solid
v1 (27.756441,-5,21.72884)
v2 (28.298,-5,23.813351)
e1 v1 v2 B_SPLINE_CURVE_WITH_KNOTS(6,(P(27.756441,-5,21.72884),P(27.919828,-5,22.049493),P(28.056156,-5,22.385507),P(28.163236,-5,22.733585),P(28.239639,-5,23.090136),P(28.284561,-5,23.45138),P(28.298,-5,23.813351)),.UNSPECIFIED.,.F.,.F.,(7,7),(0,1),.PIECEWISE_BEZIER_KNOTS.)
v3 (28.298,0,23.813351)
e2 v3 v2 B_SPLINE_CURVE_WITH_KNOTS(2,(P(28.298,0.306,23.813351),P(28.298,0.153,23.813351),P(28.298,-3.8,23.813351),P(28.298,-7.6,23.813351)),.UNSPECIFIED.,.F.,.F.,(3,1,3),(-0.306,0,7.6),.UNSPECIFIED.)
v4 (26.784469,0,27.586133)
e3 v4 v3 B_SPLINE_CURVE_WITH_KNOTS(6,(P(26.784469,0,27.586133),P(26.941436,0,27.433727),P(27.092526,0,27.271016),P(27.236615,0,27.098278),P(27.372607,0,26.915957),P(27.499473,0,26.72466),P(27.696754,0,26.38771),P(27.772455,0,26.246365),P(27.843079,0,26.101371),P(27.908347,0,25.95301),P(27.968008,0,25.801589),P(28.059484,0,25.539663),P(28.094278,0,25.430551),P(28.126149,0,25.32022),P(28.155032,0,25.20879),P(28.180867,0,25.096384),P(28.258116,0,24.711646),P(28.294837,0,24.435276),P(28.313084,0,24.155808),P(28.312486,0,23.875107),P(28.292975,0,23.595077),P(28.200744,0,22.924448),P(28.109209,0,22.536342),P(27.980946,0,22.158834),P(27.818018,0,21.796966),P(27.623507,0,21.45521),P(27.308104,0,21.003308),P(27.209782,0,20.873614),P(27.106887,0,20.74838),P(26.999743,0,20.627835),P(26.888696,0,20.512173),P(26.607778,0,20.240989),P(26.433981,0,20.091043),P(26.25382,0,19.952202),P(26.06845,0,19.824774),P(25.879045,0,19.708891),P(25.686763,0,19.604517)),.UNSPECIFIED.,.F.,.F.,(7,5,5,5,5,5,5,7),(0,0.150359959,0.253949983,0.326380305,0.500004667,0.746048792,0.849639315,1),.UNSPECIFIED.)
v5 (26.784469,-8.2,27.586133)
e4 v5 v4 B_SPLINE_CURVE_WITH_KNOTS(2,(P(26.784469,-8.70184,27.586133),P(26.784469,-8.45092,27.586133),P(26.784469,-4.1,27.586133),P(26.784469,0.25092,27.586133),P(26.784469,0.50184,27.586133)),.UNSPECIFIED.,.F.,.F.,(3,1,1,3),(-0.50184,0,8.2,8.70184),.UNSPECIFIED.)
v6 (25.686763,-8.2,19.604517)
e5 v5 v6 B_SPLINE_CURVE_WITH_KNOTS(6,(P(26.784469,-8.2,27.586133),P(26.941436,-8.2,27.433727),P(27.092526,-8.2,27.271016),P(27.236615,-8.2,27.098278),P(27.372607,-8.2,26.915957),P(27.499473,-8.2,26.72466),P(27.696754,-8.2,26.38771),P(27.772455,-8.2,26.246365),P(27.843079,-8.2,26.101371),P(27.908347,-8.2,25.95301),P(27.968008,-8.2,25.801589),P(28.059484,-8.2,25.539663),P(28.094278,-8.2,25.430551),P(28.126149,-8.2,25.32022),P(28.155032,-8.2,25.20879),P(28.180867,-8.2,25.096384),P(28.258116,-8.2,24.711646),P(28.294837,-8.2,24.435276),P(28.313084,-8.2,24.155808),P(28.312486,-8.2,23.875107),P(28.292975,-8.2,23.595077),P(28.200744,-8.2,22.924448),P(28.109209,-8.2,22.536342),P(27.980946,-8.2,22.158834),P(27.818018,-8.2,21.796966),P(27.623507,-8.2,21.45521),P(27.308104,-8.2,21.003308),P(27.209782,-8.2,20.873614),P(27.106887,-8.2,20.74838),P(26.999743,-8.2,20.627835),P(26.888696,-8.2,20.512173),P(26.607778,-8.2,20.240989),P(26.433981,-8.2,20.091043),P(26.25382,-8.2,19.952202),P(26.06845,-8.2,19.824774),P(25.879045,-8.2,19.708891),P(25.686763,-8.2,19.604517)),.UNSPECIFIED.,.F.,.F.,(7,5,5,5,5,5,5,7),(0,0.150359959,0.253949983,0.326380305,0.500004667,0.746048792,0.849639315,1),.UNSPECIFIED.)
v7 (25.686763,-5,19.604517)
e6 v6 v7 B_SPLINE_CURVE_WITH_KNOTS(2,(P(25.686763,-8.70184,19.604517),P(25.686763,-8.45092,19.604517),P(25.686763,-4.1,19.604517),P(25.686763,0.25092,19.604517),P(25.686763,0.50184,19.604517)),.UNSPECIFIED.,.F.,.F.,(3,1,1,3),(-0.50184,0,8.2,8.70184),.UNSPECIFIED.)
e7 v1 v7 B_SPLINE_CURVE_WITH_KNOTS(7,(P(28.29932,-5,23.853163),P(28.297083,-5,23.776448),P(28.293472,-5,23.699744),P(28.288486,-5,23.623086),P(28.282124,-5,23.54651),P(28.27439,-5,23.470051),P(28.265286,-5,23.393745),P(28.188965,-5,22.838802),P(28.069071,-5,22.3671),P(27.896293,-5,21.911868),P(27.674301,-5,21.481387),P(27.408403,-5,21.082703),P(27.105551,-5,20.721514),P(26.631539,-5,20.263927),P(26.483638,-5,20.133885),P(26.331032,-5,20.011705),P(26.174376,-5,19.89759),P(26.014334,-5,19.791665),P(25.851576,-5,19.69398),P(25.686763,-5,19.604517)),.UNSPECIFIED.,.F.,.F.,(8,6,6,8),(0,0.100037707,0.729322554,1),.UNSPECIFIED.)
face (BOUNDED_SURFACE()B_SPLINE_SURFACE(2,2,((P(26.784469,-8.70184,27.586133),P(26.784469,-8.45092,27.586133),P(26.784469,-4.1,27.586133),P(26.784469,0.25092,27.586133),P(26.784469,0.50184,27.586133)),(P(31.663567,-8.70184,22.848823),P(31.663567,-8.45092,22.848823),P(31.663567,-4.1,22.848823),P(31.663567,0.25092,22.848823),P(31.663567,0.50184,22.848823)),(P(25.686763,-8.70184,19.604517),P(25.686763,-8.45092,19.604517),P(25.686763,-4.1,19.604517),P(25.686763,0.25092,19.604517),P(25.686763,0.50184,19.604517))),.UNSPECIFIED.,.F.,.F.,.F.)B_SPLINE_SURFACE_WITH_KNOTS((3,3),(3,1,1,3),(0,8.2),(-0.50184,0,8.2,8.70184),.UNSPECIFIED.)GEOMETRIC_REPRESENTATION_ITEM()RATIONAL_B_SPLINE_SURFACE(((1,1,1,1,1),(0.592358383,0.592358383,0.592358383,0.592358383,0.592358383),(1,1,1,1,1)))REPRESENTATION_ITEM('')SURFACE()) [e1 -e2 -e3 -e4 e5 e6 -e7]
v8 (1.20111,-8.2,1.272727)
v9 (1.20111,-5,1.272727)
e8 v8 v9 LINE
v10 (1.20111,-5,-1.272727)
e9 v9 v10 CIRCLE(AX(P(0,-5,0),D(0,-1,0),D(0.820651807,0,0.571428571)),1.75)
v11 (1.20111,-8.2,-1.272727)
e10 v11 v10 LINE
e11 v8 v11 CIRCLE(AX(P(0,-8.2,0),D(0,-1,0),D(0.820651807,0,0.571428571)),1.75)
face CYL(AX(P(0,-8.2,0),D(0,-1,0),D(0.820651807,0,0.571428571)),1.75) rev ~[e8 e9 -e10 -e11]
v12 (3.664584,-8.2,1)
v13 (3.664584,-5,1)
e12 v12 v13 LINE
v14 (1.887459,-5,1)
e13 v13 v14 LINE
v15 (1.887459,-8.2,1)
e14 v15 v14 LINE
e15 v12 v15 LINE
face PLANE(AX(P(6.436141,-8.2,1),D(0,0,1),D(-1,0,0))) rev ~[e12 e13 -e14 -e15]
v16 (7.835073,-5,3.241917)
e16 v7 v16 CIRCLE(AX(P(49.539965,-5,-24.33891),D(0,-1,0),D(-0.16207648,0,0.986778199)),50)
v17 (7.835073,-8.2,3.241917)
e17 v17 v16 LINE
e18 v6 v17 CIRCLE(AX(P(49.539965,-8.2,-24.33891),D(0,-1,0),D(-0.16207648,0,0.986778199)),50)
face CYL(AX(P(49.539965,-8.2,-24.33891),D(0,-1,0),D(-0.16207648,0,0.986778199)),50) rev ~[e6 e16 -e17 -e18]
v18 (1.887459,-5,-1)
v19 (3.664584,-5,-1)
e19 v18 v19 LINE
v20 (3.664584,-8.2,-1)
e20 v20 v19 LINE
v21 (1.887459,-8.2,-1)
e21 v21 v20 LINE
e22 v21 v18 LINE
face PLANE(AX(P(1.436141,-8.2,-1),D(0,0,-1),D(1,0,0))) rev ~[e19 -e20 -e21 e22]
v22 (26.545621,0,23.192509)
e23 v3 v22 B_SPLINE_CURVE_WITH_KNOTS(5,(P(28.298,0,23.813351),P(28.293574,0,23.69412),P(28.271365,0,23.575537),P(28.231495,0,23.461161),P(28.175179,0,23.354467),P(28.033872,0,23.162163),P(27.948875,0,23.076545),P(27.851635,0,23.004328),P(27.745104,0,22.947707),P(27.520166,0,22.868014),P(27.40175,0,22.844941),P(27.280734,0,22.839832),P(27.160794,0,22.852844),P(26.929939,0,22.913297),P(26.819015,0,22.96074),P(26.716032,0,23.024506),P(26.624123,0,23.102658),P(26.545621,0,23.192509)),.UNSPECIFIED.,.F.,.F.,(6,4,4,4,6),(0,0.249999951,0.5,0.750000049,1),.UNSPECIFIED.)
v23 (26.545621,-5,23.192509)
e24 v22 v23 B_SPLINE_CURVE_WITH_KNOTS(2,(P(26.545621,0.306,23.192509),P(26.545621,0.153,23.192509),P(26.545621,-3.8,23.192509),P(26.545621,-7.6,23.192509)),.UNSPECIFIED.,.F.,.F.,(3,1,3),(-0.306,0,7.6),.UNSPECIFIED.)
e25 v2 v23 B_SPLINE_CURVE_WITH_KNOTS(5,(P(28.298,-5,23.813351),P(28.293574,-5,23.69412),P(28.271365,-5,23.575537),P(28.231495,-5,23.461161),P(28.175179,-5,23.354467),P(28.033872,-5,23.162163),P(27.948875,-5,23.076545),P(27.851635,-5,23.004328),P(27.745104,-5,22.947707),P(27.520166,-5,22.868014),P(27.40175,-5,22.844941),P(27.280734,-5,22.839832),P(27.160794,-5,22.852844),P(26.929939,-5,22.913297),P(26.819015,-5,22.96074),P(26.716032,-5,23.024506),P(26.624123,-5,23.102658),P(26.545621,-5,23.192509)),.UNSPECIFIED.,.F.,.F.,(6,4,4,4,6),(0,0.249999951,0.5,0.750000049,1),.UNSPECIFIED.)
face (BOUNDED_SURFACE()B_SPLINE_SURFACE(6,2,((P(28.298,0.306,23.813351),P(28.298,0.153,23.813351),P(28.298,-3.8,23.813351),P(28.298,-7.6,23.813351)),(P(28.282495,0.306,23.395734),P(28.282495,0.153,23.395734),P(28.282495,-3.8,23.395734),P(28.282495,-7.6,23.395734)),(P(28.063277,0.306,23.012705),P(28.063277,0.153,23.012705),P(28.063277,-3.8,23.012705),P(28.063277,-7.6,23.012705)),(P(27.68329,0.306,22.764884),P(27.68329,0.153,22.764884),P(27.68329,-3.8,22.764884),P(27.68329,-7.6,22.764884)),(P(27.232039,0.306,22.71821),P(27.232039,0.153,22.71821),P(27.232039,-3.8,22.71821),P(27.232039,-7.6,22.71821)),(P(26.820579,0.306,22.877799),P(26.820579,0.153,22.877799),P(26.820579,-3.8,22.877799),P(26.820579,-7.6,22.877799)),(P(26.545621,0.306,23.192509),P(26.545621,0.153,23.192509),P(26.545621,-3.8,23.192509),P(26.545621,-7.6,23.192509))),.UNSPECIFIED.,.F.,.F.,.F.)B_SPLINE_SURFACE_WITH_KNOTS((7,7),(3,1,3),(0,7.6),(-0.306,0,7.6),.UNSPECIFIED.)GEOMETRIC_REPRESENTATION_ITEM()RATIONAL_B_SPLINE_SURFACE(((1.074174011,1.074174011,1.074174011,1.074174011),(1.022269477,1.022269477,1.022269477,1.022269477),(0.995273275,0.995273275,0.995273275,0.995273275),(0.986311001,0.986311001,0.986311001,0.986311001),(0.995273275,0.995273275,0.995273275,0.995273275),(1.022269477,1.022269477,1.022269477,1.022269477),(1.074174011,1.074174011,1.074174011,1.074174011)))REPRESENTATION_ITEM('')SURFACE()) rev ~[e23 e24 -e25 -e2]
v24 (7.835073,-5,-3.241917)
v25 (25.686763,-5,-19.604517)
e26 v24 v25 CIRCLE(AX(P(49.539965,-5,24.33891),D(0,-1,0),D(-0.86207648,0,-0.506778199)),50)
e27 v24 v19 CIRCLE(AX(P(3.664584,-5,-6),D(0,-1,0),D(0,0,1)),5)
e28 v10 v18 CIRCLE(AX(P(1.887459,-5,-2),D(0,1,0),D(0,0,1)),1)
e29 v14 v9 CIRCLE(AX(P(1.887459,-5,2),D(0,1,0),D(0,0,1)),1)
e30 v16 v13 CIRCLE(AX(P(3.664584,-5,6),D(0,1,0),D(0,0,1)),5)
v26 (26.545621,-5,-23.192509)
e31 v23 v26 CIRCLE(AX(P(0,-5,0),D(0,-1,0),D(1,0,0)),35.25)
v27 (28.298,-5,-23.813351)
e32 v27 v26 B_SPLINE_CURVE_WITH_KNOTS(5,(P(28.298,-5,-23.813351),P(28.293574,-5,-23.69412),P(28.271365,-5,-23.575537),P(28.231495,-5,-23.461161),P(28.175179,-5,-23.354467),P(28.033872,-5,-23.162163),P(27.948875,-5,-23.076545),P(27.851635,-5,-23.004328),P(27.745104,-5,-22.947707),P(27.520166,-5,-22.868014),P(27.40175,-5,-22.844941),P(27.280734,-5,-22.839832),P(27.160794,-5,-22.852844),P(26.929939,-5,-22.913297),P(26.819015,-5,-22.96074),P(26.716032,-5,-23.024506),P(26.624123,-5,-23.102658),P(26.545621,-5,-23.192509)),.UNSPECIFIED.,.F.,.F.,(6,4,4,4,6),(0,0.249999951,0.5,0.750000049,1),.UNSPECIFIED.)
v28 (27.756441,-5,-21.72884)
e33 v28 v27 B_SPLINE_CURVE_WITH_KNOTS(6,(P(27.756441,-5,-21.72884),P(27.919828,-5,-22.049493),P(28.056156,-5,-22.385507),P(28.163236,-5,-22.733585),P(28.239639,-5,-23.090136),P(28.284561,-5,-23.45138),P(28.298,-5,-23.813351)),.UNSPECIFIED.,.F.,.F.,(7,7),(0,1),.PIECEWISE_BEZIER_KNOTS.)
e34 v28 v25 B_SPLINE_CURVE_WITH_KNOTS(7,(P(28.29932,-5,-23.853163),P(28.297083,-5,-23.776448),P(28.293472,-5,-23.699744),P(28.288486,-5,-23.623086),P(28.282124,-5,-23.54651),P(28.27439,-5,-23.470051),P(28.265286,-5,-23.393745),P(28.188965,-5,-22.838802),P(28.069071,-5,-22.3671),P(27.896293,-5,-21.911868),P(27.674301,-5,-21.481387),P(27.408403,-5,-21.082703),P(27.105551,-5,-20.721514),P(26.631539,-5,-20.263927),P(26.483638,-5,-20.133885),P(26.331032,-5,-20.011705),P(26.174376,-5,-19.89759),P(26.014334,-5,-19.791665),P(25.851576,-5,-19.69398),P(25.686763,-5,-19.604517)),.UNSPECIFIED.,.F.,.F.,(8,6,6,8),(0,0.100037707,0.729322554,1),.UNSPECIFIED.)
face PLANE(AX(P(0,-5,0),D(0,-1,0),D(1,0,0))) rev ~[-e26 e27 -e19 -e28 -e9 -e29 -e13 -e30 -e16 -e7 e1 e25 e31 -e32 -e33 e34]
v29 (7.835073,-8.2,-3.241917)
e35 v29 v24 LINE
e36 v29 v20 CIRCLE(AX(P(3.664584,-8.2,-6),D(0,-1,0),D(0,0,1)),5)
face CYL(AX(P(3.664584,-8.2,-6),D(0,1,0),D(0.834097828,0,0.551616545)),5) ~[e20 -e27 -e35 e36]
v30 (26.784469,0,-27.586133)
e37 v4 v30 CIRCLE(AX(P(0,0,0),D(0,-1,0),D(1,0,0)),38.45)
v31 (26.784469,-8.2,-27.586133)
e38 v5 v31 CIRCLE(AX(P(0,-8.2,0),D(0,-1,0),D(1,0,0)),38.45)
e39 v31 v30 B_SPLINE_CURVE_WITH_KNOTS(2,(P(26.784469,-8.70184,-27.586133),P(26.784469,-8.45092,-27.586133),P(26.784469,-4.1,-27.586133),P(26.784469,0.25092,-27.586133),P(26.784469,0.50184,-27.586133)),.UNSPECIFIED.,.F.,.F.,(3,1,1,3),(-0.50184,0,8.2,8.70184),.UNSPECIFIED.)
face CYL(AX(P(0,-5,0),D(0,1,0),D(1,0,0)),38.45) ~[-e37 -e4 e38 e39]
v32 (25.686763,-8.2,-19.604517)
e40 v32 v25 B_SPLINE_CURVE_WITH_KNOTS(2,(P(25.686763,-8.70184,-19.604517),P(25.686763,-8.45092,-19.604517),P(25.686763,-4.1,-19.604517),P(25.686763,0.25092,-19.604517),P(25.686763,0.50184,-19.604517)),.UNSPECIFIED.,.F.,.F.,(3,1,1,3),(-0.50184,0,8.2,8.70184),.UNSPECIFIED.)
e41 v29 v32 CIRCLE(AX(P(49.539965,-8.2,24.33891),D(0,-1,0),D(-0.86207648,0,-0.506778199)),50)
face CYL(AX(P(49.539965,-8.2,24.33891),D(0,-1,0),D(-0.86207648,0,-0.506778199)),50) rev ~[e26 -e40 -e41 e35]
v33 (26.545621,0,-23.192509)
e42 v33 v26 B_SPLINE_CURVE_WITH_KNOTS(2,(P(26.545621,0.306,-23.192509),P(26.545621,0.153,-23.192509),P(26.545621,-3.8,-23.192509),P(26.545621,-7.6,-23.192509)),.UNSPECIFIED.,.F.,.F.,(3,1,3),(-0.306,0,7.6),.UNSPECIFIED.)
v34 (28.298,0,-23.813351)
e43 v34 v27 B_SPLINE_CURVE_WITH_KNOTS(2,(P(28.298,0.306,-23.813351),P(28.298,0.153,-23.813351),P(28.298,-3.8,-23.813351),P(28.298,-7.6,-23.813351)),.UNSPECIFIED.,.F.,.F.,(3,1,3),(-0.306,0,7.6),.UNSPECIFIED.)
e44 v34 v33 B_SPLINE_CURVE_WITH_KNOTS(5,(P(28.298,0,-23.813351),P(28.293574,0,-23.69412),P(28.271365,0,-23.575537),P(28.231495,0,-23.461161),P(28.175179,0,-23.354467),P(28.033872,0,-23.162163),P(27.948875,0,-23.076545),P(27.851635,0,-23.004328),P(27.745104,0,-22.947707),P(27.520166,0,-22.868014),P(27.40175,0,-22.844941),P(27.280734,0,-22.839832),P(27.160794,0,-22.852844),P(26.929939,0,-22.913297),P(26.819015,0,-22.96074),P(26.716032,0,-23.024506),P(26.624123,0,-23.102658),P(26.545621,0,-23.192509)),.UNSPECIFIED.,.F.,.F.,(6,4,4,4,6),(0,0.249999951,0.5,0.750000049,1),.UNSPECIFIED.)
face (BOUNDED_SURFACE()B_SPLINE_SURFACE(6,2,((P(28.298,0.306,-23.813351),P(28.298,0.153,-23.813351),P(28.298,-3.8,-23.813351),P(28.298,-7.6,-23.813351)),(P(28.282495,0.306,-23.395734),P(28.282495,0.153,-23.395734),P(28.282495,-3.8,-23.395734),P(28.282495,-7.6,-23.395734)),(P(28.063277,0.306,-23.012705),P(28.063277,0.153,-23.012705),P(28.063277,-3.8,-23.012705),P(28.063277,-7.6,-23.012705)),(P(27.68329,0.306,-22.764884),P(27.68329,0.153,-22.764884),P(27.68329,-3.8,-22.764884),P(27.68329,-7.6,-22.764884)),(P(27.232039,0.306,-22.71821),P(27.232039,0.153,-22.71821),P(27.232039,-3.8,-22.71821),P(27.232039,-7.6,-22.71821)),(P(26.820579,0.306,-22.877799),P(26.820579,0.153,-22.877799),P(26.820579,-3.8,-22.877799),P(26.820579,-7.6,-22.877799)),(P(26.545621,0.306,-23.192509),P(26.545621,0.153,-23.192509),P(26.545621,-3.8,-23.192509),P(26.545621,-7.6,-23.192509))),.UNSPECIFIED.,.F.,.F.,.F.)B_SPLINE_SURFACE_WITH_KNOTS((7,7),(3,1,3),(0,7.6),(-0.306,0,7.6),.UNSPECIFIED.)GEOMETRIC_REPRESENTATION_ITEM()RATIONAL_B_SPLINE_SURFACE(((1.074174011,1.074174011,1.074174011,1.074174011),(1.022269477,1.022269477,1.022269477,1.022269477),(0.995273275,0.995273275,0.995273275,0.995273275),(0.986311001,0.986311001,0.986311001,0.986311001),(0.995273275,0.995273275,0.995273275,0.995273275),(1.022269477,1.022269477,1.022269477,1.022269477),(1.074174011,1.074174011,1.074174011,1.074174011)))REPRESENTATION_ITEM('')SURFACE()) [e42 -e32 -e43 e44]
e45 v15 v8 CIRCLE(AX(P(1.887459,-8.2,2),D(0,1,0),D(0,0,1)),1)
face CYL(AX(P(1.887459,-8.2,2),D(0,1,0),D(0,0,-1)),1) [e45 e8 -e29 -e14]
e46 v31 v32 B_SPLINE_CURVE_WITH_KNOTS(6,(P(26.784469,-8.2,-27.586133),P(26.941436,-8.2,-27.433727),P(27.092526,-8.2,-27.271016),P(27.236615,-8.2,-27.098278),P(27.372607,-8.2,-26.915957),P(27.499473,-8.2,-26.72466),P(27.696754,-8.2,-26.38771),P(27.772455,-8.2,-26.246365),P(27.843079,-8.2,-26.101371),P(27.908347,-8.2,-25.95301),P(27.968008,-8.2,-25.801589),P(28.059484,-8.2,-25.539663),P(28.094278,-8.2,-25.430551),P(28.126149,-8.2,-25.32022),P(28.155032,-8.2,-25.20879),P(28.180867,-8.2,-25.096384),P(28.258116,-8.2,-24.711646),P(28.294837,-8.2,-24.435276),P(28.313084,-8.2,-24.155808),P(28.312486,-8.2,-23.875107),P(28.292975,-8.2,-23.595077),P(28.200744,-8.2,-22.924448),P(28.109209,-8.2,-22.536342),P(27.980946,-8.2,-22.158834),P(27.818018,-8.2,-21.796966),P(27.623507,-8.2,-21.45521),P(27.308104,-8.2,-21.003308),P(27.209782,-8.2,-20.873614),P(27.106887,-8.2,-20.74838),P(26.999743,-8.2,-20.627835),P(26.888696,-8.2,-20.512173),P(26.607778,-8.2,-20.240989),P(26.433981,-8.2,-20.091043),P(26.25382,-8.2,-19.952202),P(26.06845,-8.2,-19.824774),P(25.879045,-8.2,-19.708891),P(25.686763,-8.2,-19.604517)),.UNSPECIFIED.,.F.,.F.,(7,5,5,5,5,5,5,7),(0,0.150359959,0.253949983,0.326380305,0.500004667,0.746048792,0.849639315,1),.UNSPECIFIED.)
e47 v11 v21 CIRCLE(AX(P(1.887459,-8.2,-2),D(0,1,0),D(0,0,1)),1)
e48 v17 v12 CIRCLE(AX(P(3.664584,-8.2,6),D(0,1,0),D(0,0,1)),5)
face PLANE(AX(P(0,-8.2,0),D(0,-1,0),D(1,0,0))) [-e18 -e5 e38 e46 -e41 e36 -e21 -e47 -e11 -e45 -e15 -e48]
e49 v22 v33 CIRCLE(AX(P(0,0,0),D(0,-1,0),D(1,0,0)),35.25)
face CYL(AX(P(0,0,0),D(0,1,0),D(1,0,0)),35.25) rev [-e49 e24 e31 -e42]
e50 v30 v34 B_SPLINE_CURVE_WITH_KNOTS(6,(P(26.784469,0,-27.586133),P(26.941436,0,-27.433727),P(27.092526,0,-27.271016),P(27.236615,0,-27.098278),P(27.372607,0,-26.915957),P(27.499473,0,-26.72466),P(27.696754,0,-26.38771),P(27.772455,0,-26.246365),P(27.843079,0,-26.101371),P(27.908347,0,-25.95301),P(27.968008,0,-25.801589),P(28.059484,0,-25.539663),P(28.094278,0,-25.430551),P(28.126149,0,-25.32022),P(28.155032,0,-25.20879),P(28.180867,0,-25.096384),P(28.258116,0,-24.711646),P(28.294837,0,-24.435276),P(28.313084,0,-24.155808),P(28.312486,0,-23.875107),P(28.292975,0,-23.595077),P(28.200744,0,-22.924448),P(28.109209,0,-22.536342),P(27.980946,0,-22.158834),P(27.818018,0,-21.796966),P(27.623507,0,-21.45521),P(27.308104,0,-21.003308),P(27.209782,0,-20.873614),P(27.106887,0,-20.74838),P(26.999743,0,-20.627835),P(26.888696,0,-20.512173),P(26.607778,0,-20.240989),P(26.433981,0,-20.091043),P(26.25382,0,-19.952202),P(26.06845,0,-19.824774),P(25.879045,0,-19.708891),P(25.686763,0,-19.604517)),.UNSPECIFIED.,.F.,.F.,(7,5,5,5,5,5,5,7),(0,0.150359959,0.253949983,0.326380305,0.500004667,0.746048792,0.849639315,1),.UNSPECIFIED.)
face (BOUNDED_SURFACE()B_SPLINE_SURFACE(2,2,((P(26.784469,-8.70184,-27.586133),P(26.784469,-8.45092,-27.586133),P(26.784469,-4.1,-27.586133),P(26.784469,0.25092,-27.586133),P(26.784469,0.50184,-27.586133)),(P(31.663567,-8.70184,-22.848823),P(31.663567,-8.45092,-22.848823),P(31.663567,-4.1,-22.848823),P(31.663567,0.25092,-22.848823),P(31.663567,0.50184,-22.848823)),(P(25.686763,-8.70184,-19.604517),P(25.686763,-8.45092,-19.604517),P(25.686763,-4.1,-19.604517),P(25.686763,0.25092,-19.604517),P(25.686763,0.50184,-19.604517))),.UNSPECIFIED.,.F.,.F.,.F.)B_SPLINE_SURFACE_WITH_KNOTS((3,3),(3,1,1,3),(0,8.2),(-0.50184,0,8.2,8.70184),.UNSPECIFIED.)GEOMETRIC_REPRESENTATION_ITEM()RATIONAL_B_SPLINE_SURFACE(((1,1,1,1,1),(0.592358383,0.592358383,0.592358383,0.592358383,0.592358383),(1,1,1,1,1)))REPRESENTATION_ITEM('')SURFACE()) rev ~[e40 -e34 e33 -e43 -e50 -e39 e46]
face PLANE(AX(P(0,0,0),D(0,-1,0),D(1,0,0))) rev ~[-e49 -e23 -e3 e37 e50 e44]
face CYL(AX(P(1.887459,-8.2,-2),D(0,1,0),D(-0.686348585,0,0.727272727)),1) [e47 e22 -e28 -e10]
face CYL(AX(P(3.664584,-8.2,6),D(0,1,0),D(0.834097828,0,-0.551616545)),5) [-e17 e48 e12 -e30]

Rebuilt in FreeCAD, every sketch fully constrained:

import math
import FreeCAD as App
import Part
import Sketcher


def edges_at(feature, points):
    """Names of the edges that pass closest to the given points."""
    edges = feature.Shape.Edges
    near = lambda p: min(range(len(edges)), key=lambda i: edges[i].distToShape(Part.Vertex(*p))[0])
    return sorted({f"Edge{near(p) + 1}" for p in points})

doc = App.newDocument("Part")
body = doc.addObject("PartDesign::Body", "Body")

# Sketch on XZ plane
sketch1 = body.newObject("Sketcher::SketchObject", "Sketch")
sketch1.AttachmentSupport = (doc.getObject("XZ_Plane"), [""])
sketch1.MapMode = "FlatFace"
sketch1.addGeometry(Part.Circle(App.Vector(0, 0, 0), App.Vector(0, 0, 1), 38), False)
sketch1.addGeometry(Part.Circle(App.Vector(0, 0, 0), App.Vector(0, 0, 1), 35), False)
sketch1.addConstraint(Sketcher.Constraint("Coincident", 0, 3, -1, 1))
sketch1.addConstraint(Sketcher.Constraint("Coincident", 1, 3, -1, 1))
sketch1.addConstraint(Sketcher.Constraint("Diameter", 0, 76.9))
sketch1.addConstraint(Sketcher.Constraint("Diameter", 1, 70.5))
pad1 = body.newObject("PartDesign::Pad", "Pad")
pad1.Profile = sketch1
pad1.Length = 5

# Sketch on XZ plane
sketch2 = body.newObject("Sketcher::SketchObject", "Sketch001")
sketch2.AttachmentSupport = (doc.getObject("XZ_Plane"), [""])
sketch2.MapMode = "FlatFace"
sketch2.AttachmentOffset = App.Placement(App.Vector(0, 0, 5), App.Rotation())
sketch2.addGeometry(Part.Circle(App.Vector(0, 0, 0), App.Vector(0, 0, 1), 38), False)
sketch2.addConstraint(Sketcher.Constraint("Coincident", 0, 3, -1, 1))
sketch2.addConstraint(Sketcher.Constraint("Diameter", 0, 76.9))
pad2 = body.newObject("PartDesign::Pad", "Pad001")
pad2.Profile = sketch2
pad2.Length = 3.2

# Sketch on XZ plane
sketch3 = body.newObject("Sketcher::SketchObject", "Sketch002")
sketch3.AttachmentSupport = (doc.getObject("XZ_Plane"), [""])
sketch3.MapMode = "FlatFace"
sketch3.AttachmentOffset = App.Placement(App.Vector(0, 0, 8.2), App.Rotation())
sketch3.addGeometry(Part.LineSegment(App.Vector(6.4, 1, 0), App.Vector(1.4, 1, 0)), False)
sketch3.addGeometry(Part.ArcOfCircle(Part.Circle(App.Vector(0, 0, 0), App.Vector(0, 0, 1), 1.8), math.radians(35), math.radians(325)), False)
sketch3.addGeometry(Part.LineSegment(App.Vector(1.4, -1, 0), App.Vector(6.4, -1, 0)), False)
sketch3.addGeometry(Part.ArcOfCircle(Part.Circle(App.Vector(49.5, 24.3, 0), App.Vector(0, 0, 1), 50), math.radians(-150), math.radians(-99)), False)
sketch3.addGeometry(Part.LineSegment(App.Vector(41.4, -25, 0), App.Vector(41.4, 25, 0)), False)
sketch3.addGeometry(Part.ArcOfCircle(Part.Circle(App.Vector(49.5, -24.3, 0), App.Vector(0, 0, 1), 50), math.radians(99), math.radians(150)), False)
sketch3.addConstraint(Sketcher.Constraint("Coincident", 0, 2, 1, 1))
sketch3.addConstraint(Sketcher.Constraint("Coincident", 1, 2, 2, 1))
sketch3.addConstraint(Sketcher.Constraint("Coincident", 2, 2, 3, 1))
sketch3.addConstraint(Sketcher.Constraint("Coincident", 3, 2, 4, 1))
sketch3.addConstraint(Sketcher.Constraint("Coincident", 4, 2, 5, 1))
sketch3.addConstraint(Sketcher.Constraint("Coincident", 5, 2, 0, 1))
sketch3.addConstraint(Sketcher.Constraint("Horizontal", 0))
sketch3.addConstraint(Sketcher.Constraint("Horizontal", 2))
sketch3.addConstraint(Sketcher.Constraint("Vertical", 4))
sketch3.addConstraint(Sketcher.Constraint("Coincident", 1, 3, -1, 1))
sketch3.addConstraint(Sketcher.Constraint("Equal", 3, 5))
sketch3.addConstraint(Sketcher.Constraint("Symmetric", 3, 3, 5, 3, -1))
sketch3.addConstraint(Sketcher.Constraint("Vertical", 0, 2, 1, 2))
sketch3.addConstraint(Sketcher.Constraint("Radius", 3, 50.0))
sketch3.addConstraint(Sketcher.Constraint("DistanceX", 0, 2, 0, 1, 5.0))
sketch3.addConstraint(Sketcher.Constraint("DistanceY", 4, 1, 4, 2, 50.0))
sketch3.addConstraint(Sketcher.Constraint("Radius", 1, 1.75))
sketch3.addConstraint(Sketcher.Constraint("DistanceY", -1, 1, 0, 2, 1.0))
sketch3.addConstraint(Sketcher.Constraint("DistanceX", 2, 2, 3, 2, 35.0))
pocket1 = body.newObject("PartDesign::Pocket", "Pocket")
pocket1.Profile = sketch3
pocket1.Length = 25
doc.recompute()

fillet = body.newObject("PartDesign::Fillet", "Fillet")
fillet.Base = (pocket1, edges_at(pocket1, [
    (31.365, -4.1, 22.241),
    (31.365, -4.1, -22.241),
    (6.436, -6.6, -1),
    (6.436, -6.6, 1),
]))
fillet.Radius = 5
doc.recompute()

fillet2 = body.newObject("PartDesign::Fillet", "Fillet001")
fillet2.Base = (fillet, edges_at(fillet, [
    (1.436, -6.6, 1),
    (1.436, -6.6, -1),
    (27.756, -2.5, 21.729),
    (27.756, -2.5, -21.729),
]))
fillet2.Radius = 1

doc.recompute()
